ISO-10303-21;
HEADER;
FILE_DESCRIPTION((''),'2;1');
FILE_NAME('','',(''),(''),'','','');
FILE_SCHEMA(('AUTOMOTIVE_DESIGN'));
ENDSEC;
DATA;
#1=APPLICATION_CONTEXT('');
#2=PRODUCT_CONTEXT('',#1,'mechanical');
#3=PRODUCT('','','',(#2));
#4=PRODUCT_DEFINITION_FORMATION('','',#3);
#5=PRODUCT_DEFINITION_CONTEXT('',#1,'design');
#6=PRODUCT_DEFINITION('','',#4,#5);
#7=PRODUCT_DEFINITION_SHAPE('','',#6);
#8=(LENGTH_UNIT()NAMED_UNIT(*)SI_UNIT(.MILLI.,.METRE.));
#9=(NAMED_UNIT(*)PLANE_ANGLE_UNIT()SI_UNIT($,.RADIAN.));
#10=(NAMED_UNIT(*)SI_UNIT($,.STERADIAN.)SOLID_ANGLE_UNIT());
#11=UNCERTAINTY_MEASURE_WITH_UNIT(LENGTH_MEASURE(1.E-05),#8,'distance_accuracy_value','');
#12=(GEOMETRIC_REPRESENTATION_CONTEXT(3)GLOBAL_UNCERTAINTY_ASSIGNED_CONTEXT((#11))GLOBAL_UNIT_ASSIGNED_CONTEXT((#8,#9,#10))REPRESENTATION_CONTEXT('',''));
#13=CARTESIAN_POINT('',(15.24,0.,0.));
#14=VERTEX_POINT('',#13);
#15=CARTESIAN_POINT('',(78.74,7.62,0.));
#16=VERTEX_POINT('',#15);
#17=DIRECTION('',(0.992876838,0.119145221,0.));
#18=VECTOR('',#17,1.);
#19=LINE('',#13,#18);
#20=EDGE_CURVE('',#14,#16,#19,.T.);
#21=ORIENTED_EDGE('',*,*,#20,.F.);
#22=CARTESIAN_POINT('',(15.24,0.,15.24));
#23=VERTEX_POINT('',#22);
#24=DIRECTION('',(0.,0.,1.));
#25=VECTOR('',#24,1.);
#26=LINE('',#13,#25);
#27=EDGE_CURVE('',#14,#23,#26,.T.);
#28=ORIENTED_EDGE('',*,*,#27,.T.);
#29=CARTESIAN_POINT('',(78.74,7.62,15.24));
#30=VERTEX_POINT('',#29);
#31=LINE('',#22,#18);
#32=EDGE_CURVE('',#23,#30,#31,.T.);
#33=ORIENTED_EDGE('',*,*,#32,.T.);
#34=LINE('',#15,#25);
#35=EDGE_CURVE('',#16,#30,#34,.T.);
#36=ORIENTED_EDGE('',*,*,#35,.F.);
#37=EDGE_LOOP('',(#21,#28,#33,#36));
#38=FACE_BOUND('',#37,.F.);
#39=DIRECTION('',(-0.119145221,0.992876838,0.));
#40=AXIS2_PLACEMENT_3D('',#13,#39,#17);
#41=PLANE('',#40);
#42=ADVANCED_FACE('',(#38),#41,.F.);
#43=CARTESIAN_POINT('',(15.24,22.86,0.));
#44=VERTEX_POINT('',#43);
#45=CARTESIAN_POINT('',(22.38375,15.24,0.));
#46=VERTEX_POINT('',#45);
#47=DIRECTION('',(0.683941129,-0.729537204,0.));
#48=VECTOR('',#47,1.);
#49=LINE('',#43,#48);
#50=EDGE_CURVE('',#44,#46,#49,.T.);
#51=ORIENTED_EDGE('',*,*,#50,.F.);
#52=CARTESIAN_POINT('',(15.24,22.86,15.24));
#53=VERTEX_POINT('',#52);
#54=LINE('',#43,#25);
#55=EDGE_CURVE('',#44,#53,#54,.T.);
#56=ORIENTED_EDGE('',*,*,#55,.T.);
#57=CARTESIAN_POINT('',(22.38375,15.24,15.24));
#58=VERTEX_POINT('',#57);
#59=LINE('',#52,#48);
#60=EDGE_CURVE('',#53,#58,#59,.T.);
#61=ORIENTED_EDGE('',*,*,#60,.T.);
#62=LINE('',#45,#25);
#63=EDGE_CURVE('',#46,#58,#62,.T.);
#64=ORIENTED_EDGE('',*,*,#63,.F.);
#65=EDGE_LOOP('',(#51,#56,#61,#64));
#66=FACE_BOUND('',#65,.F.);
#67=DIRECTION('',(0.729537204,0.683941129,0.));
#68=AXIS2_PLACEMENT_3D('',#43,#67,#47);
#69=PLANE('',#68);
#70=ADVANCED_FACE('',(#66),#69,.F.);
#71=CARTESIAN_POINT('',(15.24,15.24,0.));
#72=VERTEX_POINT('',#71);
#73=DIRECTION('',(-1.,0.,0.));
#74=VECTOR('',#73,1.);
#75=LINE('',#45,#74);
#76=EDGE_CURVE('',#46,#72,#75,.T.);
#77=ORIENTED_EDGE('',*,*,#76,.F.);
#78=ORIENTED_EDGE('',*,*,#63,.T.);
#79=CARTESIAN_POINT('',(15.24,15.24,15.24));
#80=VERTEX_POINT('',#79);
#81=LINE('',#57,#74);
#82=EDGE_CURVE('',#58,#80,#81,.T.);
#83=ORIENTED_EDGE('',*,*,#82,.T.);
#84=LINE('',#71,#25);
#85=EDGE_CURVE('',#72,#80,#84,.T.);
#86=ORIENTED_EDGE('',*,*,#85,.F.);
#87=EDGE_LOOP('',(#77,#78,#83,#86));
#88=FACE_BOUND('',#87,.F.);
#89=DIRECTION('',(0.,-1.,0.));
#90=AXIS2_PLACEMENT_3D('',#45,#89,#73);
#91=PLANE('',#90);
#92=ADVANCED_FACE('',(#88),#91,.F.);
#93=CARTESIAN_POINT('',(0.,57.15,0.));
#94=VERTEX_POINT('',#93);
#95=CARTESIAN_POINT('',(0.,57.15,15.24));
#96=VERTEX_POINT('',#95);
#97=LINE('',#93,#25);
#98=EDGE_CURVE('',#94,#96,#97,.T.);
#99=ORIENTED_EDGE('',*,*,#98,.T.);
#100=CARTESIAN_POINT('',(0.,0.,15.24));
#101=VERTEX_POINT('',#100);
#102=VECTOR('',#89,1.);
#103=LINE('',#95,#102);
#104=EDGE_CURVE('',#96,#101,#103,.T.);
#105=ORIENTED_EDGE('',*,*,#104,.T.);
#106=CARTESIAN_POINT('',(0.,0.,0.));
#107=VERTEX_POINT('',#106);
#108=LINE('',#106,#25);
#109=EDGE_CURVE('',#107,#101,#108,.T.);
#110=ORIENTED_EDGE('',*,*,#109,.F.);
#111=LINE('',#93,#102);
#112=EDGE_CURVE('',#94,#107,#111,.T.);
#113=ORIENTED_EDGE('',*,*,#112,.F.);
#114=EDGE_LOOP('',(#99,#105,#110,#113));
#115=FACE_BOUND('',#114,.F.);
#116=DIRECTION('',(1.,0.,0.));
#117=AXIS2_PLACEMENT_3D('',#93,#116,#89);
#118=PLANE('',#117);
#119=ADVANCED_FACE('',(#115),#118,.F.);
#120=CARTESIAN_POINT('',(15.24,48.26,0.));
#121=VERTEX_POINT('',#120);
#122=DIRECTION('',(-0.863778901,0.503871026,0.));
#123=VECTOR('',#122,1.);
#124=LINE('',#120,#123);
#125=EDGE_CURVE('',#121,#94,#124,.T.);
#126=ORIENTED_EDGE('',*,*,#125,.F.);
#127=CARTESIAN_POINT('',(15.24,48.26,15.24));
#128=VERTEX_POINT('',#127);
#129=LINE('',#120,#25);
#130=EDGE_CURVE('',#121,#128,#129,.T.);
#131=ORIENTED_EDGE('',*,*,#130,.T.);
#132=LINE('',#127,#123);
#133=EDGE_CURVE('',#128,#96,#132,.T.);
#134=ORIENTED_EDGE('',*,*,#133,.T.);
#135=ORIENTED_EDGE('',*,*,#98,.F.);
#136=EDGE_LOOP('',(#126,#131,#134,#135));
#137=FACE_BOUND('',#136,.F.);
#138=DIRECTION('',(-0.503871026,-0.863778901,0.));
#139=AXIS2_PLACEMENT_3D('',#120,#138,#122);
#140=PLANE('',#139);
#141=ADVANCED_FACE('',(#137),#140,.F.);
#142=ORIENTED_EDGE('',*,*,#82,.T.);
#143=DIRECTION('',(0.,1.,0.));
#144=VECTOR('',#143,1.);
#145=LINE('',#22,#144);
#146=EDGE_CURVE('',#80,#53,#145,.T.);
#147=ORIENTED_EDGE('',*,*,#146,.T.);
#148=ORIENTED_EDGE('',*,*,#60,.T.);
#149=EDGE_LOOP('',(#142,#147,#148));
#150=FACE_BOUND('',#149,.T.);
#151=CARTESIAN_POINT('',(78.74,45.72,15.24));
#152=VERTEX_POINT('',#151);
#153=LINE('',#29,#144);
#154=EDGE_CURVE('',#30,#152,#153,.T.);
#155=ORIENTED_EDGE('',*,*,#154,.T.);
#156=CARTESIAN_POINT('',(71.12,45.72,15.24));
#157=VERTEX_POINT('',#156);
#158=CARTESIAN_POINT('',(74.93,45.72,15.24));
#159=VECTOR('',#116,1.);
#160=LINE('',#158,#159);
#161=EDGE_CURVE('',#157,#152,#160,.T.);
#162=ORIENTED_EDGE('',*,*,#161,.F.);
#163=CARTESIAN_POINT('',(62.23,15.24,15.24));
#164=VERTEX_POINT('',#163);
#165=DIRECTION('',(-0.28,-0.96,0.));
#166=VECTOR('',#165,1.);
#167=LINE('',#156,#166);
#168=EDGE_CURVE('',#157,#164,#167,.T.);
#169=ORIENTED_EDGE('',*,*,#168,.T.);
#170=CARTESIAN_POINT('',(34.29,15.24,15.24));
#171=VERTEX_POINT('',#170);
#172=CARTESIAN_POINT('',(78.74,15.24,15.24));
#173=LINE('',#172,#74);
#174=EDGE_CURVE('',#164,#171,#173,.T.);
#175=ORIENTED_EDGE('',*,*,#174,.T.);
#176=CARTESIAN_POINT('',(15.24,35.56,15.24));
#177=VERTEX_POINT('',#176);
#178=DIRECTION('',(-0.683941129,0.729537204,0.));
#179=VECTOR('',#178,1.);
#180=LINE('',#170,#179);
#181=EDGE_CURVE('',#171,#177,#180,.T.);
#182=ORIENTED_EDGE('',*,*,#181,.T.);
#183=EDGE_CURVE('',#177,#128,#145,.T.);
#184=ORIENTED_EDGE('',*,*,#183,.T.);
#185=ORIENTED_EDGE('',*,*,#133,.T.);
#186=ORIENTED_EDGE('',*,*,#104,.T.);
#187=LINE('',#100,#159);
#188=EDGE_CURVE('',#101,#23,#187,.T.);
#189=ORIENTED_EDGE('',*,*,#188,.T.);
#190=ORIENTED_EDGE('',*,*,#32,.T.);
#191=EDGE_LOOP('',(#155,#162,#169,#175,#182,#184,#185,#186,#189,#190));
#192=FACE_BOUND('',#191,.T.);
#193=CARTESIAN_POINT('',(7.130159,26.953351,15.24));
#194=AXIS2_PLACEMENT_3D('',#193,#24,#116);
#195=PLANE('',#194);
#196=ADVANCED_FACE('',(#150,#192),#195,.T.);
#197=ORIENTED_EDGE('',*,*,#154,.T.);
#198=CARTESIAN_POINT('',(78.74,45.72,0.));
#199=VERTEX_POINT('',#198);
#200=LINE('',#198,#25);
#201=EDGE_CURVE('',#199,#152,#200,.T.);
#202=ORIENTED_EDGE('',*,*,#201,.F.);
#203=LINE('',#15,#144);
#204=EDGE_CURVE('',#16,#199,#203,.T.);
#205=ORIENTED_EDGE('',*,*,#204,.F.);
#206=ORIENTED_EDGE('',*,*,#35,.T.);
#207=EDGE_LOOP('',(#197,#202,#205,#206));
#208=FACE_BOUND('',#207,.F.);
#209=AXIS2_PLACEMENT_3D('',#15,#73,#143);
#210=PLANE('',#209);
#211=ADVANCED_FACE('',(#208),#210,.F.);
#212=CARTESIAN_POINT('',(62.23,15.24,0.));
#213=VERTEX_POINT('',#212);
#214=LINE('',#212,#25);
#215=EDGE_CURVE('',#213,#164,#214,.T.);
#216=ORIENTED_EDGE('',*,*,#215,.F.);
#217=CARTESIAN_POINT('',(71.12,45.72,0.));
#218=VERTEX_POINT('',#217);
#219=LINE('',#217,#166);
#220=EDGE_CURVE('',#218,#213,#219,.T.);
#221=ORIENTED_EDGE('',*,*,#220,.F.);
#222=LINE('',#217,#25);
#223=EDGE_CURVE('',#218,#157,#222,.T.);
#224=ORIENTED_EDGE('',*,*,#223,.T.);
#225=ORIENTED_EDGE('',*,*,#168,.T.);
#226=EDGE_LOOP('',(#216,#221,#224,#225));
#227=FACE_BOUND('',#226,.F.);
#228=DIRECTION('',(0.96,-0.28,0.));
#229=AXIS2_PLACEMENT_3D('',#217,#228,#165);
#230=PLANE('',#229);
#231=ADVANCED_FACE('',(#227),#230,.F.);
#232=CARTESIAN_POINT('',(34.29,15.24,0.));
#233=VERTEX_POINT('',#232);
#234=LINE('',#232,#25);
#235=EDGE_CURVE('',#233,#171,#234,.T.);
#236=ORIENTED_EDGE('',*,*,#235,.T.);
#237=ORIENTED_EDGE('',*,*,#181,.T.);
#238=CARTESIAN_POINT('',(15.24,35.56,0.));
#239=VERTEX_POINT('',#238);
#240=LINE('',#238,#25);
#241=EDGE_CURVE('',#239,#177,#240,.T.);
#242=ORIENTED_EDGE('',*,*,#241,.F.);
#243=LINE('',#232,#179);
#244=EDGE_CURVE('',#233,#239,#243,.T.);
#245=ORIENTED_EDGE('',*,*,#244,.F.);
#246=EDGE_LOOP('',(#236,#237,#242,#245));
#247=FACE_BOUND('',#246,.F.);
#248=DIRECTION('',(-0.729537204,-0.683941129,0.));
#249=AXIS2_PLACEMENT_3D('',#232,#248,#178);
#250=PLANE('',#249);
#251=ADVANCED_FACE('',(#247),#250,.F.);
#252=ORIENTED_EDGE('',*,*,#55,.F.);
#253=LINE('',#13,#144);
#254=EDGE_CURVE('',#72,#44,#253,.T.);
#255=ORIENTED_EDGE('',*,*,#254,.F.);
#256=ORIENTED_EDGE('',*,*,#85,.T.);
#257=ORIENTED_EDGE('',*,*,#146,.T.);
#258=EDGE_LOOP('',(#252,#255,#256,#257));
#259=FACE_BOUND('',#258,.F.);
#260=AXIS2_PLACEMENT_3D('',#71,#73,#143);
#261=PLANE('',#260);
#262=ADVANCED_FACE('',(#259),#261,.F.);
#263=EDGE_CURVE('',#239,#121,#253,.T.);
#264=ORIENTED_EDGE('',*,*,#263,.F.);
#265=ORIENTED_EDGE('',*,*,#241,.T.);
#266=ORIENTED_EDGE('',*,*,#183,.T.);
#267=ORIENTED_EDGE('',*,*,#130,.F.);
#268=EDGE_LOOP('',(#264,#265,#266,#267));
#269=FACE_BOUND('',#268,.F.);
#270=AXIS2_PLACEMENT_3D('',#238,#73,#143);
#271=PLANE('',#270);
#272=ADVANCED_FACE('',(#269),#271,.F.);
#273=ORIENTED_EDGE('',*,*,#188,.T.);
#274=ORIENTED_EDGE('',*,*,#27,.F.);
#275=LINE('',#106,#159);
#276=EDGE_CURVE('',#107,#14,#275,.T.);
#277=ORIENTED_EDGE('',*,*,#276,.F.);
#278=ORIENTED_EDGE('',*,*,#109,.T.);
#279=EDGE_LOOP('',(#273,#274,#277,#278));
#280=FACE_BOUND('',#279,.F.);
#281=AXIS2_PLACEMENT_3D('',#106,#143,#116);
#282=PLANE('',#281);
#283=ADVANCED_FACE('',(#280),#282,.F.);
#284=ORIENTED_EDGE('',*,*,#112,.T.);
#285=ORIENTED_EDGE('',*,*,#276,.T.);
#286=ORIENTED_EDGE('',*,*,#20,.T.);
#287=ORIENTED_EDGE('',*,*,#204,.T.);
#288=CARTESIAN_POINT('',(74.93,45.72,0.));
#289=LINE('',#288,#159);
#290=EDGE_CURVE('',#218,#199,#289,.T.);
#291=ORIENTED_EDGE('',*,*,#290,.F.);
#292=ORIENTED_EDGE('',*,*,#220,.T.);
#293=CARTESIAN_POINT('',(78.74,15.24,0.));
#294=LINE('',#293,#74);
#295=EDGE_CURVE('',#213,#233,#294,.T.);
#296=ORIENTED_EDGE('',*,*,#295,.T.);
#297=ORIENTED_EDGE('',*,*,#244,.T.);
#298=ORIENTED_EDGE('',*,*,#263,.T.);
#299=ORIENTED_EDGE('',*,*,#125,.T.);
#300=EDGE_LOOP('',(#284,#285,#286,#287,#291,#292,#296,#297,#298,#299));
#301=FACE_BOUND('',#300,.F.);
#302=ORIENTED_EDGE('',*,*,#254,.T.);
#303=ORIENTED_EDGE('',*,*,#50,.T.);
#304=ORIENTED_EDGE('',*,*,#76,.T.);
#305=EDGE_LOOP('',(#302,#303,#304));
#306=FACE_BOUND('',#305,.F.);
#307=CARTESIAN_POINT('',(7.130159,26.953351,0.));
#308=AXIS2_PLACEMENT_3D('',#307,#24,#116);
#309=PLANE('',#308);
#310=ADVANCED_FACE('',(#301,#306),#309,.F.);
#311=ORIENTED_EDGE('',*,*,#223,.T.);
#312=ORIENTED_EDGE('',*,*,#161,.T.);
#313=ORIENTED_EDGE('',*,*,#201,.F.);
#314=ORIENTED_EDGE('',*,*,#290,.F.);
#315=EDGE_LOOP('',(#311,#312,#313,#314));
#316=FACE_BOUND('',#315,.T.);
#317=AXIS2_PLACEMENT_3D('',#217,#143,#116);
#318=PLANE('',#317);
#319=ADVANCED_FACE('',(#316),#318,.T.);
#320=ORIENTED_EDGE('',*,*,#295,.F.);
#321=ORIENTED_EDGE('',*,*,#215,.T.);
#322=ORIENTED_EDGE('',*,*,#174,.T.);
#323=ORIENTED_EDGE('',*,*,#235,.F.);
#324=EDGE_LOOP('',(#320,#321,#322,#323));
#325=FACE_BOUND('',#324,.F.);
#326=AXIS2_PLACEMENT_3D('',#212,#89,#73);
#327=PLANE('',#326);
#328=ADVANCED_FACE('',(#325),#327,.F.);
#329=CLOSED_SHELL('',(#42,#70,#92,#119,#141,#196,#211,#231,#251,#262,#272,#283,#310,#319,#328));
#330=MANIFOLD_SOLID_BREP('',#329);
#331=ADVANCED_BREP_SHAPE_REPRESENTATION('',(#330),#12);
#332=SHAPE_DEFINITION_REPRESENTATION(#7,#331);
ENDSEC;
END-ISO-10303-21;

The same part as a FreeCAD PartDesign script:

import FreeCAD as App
import Part
import Sketcher
Q = App.Units.Quantity

doc = App.newDocument("Part")
body = doc.addObject("PartDesign::Body", "Body")

sketch1 = doc.addObject("Sketcher::SketchObject", "Sketch")
body.addObject(sketch1)
sketch1.AttachmentSupport = (doc.XY_Plane, [""])
sketch1.MapMode = "FlatFace"
sketch1.addGeometry(Part.LineSegment(App.Vector(15, 48, 0), App.Vector(0, 57, 0)), False)
sketch1.addGeometry(Part.LineSegment(App.Vector(0, 57, 0), App.Vector(0, 0, 0)), False)
sketch1.addGeometry(Part.LineSegment(App.Vector(0, 0, 0), App.Vector(15, 0, 0)), False)
sketch1.addGeometry(Part.LineSegment(App.Vector(15, 0, 0), App.Vector(79, 8, 0)), False)
sketch1.addGeometry(Part.LineSegment(App.Vector(79, 8, 0), App.Vector(79, 46, 0)), False)
sketch1.addGeometry(Part.LineSegment(App.Vector(79, 46, 0), App.Vector(71, 46, 0)), False)
sketch1.addGeometry(Part.LineSegment(App.Vector(71, 46, 0), App.Vector(62, 15, 0)), False)
sketch1.addGeometry(Part.LineSegment(App.Vector(62, 15, 0), App.Vector(34, 15, 0)), False)
sketch1.addGeometry(Part.LineSegment(App.Vector(34, 15, 0), App.Vector(15, 36, 0)), False)
sketch1.addGeometry(Part.LineSegment(App.Vector(15, 36, 0), App.Vector(15, 48, 0)), False)
sketch1.addGeometry(Part.LineSegment(App.Vector(15, 15, 0), App.Vector(15, 23, 0)), False)
sketch1.addGeometry(Part.LineSegment(App.Vector(15, 23, 0), App.Vector(22, 15, 0)), False)
sketch1.addGeometry(Part.LineSegment(App.Vector(22, 15, 0), App.Vector(15, 15, 0)), False)
sketch1.addConstraint(Sketcher.Constraint("Coincident", 0, 2, 1, 1))
sketch1.addConstraint(Sketcher.Constraint("Coincident", 1, 2, 2, 1))
sketch1.addConstraint(Sketcher.Constraint("Coincident", 2, 2, 3, 1))
sketch1.addConstraint(Sketcher.Constraint("Coincident", 3, 2, 4, 1))
sketch1.addConstraint(Sketcher.Constraint("Coincident", 4, 2, 5, 1))
sketch1.addConstraint(Sketcher.Constraint("Coincident", 5, 2, 6, 1))
sketch1.addConstraint(Sketcher.Constraint("Coincident", 6, 2, 7, 1))
sketch1.addConstraint(Sketcher.Constraint("Coincident", 7, 2, 8, 1))
sketch1.addConstraint(Sketcher.Constraint("Coincident", 8, 2, 9, 1))
sketch1.addConstraint(Sketcher.Constraint("Coincident", 9, 2, 0, 1))
sketch1.addConstraint(Sketcher.Constraint("Coincident", 10, 2, 11, 1))
sketch1.addConstraint(Sketcher.Constraint("Coincident", 11, 2, 12, 1))
sketch1.addConstraint(Sketcher.Constraint("Coincident", 12, 2, 10, 1))
sketch1.addConstraint(Sketcher.Constraint("Vertical", 1))
sketch1.addConstraint(Sketcher.Constraint("Horizontal", 2))
sketch1.addConstraint(Sketcher.Constraint("Vertical", 4))
sketch1.addConstraint(Sketcher.Constraint("Horizontal", 5))
sketch1.addConstraint(Sketcher.Constraint("Horizontal", 7))
sketch1.addConstraint(Sketcher.Constraint("Vertical", 9))
sketch1.addConstraint(Sketcher.Constraint("Vertical", 10))
sketch1.addConstraint(Sketcher.Constraint("Horizontal", 12))
sketch1.addConstraint(Sketcher.Constraint("Coincident", 1, 2, -1, 1))
sketch1.addConstraint(Sketcher.Constraint("Parallel", 8, 11))
sketch1.addConstraint(Sketcher.Constraint("Horizontal", 7, 2, 11, 2))
sketch1.addConstraint(Sketcher.Constraint("Vertical", 2, 2, 8, 2))
sketch1.addConstraint(Sketcher.Constraint("Vertical", 9, 2, 10, 2))
sketch1.addConstraint(Sketcher.Constraint("Equal", 5, 10))
sketch1.addConstraint(Sketcher.Constraint("DistanceX", 2, 1, 2, 2, Q("0.6 in")))
sketch1.addConstraint(Sketcher.Constraint("DistanceX", 5, 2, 5, 1, Q("0.3 in")))
sketch1.addConstraint(Sketcher.Constraint("DistanceX", 7, 2, 7, 1, Q("1.1 in")))
sketch1.addConstraint(Sketcher.Constraint("DistanceY", 4, 1, 4, 2, Q("1.5 in")))
sketch1.addConstraint(Sketcher.Constraint("DistanceY", 9, 1, 9, 2, Q("0.5 in")))
sketch1.addConstraint(Sketcher.Constraint("DistanceY", 10, 2, 9, 2, Q("1 in")))
sketch1.addConstraint(Sketcher.Constraint("DistanceY", 1, 2, 1, 1, Q("2.25 in")))
sketch1.addConstraint(Sketcher.Constraint("DistanceX", -1, 1, 3, 2, Q("3.1 in")))
sketch1.addConstraint(Sketcher.Constraint("DistanceY", -1, 1, 3, 2, Q("0.3 in")))
sketch1.addConstraint(Sketcher.Constraint("DistanceY", -1, 1, 6, 2, Q("0.6 in")))
sketch1.addConstraint(Sketcher.Constraint("Distance", 6, Q("1.25 in")))
pad1 = doc.addObject("PartDesign::Pad", "Pad")
body.addObject(pad1)
pad1.Profile = sketch1
pad1.Length = Q("0.6 in")

doc.recompute()
